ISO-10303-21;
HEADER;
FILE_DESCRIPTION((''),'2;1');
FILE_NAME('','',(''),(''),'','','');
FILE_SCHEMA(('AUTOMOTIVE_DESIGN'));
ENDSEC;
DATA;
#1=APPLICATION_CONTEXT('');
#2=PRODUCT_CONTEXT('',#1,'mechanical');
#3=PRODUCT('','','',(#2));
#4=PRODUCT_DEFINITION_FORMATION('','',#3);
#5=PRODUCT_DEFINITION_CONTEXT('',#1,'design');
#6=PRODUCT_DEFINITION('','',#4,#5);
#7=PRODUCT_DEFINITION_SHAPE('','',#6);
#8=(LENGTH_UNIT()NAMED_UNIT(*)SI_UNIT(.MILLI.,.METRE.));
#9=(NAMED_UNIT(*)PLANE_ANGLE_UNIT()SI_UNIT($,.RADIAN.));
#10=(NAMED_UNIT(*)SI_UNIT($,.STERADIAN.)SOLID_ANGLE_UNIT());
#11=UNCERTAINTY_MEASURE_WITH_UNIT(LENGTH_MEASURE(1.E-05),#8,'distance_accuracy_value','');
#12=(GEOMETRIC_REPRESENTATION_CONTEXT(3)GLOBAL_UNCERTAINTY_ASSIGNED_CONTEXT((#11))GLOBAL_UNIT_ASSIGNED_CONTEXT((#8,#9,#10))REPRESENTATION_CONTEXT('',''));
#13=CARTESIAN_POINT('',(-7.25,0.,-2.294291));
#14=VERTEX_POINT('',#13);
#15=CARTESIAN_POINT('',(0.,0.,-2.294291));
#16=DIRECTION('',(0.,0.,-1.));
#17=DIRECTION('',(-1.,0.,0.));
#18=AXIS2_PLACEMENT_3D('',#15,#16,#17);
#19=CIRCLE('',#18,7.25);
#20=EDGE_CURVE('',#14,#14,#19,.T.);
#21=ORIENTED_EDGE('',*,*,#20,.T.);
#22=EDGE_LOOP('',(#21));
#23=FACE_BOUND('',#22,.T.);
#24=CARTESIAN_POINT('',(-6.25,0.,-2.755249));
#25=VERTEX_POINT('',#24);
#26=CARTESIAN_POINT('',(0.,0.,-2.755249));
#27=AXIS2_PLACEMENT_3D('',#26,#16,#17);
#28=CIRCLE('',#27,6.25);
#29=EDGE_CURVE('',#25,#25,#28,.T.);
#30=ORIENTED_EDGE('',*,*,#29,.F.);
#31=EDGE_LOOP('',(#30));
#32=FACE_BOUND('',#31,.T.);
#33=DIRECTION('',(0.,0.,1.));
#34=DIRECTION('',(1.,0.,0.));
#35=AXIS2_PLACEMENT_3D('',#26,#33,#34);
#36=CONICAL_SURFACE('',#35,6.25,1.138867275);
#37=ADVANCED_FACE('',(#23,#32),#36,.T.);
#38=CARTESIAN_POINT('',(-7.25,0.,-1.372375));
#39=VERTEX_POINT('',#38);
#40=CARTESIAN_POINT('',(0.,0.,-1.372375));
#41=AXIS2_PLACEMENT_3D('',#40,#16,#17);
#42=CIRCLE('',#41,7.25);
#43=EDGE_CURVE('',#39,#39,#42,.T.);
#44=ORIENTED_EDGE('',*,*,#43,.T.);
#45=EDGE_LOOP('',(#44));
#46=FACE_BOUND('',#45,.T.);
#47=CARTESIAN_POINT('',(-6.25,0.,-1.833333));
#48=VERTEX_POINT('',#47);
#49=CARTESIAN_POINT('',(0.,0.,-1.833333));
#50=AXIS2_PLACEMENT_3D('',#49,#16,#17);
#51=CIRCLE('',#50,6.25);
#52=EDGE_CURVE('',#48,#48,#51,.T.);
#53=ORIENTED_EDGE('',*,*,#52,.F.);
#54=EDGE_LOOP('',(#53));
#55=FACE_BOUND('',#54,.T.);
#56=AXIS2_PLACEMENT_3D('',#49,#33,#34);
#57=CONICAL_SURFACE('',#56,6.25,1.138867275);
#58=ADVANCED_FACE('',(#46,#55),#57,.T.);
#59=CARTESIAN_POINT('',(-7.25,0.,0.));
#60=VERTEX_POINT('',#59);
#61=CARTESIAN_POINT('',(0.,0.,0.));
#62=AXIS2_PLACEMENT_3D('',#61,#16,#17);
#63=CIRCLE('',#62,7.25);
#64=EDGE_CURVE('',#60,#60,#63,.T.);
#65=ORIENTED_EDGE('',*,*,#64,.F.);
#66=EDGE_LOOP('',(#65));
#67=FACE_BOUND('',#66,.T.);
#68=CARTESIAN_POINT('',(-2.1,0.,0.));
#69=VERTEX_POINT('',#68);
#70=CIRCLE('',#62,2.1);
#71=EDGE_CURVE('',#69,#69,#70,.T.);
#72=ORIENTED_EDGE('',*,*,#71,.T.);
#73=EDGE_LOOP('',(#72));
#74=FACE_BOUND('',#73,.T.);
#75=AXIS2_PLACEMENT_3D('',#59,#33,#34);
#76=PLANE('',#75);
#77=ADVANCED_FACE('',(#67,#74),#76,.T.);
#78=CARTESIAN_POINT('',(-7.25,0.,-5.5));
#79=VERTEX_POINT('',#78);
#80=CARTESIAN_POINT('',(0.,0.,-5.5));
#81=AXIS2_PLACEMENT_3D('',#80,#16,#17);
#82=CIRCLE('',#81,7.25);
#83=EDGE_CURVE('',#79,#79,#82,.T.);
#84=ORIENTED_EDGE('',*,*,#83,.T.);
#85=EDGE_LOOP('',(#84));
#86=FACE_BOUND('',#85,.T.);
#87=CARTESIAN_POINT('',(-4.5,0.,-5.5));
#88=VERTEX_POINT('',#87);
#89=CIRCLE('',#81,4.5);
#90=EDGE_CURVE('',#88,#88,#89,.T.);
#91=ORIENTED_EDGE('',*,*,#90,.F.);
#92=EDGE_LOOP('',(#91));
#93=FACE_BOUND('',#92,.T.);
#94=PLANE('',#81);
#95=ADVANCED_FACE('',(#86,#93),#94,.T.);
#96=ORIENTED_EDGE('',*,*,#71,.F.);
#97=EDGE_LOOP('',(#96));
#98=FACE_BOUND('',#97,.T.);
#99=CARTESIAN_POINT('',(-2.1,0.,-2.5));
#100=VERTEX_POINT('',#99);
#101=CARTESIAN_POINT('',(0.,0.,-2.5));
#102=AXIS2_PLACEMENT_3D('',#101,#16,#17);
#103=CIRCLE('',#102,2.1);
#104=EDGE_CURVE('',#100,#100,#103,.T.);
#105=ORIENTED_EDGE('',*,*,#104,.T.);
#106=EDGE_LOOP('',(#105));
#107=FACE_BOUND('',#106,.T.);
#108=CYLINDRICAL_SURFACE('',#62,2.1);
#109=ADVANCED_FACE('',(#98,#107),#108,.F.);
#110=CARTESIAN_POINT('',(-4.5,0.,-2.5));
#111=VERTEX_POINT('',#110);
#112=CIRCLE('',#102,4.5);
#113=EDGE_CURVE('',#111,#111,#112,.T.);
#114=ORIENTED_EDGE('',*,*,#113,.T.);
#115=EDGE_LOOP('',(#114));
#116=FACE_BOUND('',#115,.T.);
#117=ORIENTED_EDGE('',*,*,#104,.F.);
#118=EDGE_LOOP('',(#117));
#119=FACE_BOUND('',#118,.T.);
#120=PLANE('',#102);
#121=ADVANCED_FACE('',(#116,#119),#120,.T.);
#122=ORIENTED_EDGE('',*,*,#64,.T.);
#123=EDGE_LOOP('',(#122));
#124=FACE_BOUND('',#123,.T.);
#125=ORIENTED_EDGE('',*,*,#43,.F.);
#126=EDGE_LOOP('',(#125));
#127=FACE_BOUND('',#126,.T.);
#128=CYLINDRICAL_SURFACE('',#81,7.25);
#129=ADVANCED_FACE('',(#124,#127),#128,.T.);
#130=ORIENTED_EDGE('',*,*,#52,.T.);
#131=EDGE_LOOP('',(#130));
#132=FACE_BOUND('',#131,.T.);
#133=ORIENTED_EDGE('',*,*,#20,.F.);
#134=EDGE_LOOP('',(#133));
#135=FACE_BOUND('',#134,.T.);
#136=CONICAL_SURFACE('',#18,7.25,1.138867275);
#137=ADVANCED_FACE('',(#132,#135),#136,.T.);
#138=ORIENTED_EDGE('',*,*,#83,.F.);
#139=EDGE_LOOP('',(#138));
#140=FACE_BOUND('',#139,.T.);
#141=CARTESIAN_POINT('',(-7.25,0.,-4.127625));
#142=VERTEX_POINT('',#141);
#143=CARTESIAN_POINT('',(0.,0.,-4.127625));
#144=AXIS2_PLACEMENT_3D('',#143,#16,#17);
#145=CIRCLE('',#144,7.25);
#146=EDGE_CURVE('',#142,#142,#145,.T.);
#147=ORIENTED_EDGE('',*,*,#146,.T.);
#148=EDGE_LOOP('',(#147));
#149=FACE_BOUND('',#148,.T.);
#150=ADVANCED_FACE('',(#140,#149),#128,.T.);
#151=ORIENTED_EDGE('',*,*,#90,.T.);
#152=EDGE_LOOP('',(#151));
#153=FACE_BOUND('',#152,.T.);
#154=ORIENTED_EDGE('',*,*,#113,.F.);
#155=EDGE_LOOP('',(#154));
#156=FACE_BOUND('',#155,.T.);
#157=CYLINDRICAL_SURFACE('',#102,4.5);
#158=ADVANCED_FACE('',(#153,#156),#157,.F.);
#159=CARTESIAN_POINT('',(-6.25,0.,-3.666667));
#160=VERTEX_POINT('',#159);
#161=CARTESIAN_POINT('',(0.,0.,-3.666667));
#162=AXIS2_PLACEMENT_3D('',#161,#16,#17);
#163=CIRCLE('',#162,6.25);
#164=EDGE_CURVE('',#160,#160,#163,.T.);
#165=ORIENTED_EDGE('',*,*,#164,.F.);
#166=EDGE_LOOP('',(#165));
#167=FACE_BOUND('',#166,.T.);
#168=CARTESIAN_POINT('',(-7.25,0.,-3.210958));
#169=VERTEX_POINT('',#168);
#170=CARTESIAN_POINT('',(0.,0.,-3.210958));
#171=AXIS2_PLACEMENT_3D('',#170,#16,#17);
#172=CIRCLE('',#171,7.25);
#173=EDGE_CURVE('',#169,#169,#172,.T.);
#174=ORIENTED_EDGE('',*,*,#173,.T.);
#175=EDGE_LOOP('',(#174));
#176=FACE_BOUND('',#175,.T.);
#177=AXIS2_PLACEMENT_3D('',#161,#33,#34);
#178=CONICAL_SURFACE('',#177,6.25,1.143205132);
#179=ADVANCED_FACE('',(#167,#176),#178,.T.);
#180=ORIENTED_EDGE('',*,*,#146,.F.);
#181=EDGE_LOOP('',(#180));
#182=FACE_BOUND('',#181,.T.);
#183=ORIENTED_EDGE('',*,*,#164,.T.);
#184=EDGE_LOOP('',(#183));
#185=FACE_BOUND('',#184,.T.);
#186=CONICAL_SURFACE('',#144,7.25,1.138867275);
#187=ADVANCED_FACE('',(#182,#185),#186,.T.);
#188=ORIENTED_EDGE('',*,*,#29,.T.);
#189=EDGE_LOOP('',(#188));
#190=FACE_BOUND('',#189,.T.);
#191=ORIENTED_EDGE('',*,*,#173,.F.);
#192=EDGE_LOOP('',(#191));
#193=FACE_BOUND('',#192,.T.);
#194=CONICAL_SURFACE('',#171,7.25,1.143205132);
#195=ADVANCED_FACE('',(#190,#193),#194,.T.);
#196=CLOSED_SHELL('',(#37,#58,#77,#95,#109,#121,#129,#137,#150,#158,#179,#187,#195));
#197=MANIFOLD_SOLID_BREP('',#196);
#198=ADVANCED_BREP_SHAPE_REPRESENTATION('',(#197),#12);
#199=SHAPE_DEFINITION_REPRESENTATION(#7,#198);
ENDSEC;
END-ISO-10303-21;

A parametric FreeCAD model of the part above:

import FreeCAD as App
import Part
import Sketcher

V = App.Vector


def add_polygon(sketch, points):
    """Adds a closed chain of lines whose ends are joined by coincident constraints."""
    first, n = sketch.GeometryCount, len(points)
    for a, b in zip(points, points[1:] + points[:1]):
        sketch.addGeometry(Part.LineSegment(App.Vector(*a, 0), App.Vector(*b, 0)), False)
    for i in range(n):
        sketch.addConstraint(Sketcher.Constraint("Coincident", first + i, 2, first + (i + 1) % n, 1))

doc = App.newDocument("Part")
body = doc.addObject("PartDesign::Body", "Body")

sketch1 = doc.addObject("Sketcher::SketchObject", "Sketch")
body.addObject(sketch1)
sketch1.AttachmentSupport = (doc.XZ_Plane, [""])
sketch1.MapMode = "FlatFace"
add_polygon(sketch1, [(0, -5.5), (-7.2, -5.5), (-7.2, -4.1), (-6.2, -3.7), (-7.2, -3.2), (-6.2, -2.8), (-7.2, -2.3), (-6.2, -1.8), (-7.2, -1.4), (-7.2, 0), (0, 0)])
sketch1.addConstraint(Sketcher.Constraint("Horizontal", 0))
sketch1.addConstraint(Sketcher.Constraint("Vertical", 1))
sketch1.addConstraint(Sketcher.Constraint("Vertical", 8))
sketch1.addConstraint(Sketcher.Constraint("Horizontal", 9))
sketch1.addConstraint(Sketcher.Constraint("Vertical", 10))
sketch1.addConstraint(Sketcher.Constraint("Coincident", 9, 2, -1, 1))
sketch1.addConstraint(Sketcher.Constraint("Parallel", 2, 6))
sketch1.addConstraint(Sketcher.Constraint("Parallel", 5, 7))
sketch1.addConstraint(Sketcher.Constraint("Vertical", 1, 2, 3, 2))
sketch1.addConstraint(Sketcher.Constraint("Vertical", 2, 2, 4, 2))
sketch1.addConstraint(Sketcher.Constraint("Vertical", 3, 2, 5, 2))
sketch1.addConstraint(Sketcher.Constraint("Vertical", 4, 2, 6, 2))
sketch1.addConstraint(Sketcher.Constraint("Vertical", 5, 2, 7, 2))
sketch1.addConstraint(Sketcher.Constraint("Equal", 1, 8))
sketch1.addConstraint(Sketcher.Constraint("Equal", 3, 4))
sketch1.addConstraint(Sketcher.Constraint("Equal", 2, 5))
sketch1.addConstraint(Sketcher.Constraint("DistanceY", 10, 2, 10, 1, 5.5))
sketch1.addConstraint(Sketcher.Constraint("DistanceX", 1, 2, 2, 2, 1.0))
sketch1.addConstraint(Sketcher.Constraint("DistanceX", 0, 2, 0, 1, 7.25))
sketch1.addConstraint(Sketcher.Constraint("Distance", 3, 1.098941))
sketch1.addConstraint(Sketcher.Constraint("DistanceY", 1, 1, 1, 2, 1.372375))
revolution = doc.addObject("PartDesign::Revolution", "Revolution")
body.addObject(revolution)
revolution.Profile = sketch1
revolution.ReferenceAxis = (sketch1, ["V_Axis"])
revolution.Angle = 360

sketch2 = doc.addObject("Sketcher::SketchObject", "Sketch001")
body.addObject(sketch2)
sketch2.AttachmentSupport = (doc.XY_Plane, [""])
sketch2.MapMode = "FlatFace"
sketch2.AttachmentOffset = App.Placement(V(0, 0, -5.5), App.Rotation())
sketch2.addGeometry(Part.Circle(V(0, 0, 0), V(0, 0, 1), 4.5), False)
sketch2.addConstraint(Sketcher.Constraint("Coincident", 0, 3, -1, 1))
sketch2.addConstraint(Sketcher.Constraint("Diameter", 0, 9.0))
pocket1 = doc.addObject("PartDesign::Pocket", "Pocket")
body.addObject(pocket1)
pocket1.Profile = sketch2
pocket1.Length = 3
pocket1.Reversed = True

sketch3 = doc.addObject("Sketcher::SketchObject", "Sketch002")
body.addObject(sketch3)
sketch3.AttachmentSupport = (doc.XY_Plane, [""])
sketch3.MapMode = "FlatFace"
sketch3.AttachmentOffset = App.Placement(V(0, 0, -2.5), App.Rotation())
sketch3.addGeometry(Part.Circle(V(0, 0, 0), V(0, 0, 1), 2.1), False)
sketch3.addConstraint(Sketcher.Constraint("Coincident", 0, 3, -1, 1))
sketch3.addConstraint(Sketcher.Constraint("Diameter", 0, 4.2))
pocket2 = doc.addObject("PartDesign::Pocket", "Pocket001")
body.addObject(pocket2)
pocket2.Profile = sketch3
pocket2.Type = "ThroughAll"
pocket2.Reversed = True

doc.recompute()
